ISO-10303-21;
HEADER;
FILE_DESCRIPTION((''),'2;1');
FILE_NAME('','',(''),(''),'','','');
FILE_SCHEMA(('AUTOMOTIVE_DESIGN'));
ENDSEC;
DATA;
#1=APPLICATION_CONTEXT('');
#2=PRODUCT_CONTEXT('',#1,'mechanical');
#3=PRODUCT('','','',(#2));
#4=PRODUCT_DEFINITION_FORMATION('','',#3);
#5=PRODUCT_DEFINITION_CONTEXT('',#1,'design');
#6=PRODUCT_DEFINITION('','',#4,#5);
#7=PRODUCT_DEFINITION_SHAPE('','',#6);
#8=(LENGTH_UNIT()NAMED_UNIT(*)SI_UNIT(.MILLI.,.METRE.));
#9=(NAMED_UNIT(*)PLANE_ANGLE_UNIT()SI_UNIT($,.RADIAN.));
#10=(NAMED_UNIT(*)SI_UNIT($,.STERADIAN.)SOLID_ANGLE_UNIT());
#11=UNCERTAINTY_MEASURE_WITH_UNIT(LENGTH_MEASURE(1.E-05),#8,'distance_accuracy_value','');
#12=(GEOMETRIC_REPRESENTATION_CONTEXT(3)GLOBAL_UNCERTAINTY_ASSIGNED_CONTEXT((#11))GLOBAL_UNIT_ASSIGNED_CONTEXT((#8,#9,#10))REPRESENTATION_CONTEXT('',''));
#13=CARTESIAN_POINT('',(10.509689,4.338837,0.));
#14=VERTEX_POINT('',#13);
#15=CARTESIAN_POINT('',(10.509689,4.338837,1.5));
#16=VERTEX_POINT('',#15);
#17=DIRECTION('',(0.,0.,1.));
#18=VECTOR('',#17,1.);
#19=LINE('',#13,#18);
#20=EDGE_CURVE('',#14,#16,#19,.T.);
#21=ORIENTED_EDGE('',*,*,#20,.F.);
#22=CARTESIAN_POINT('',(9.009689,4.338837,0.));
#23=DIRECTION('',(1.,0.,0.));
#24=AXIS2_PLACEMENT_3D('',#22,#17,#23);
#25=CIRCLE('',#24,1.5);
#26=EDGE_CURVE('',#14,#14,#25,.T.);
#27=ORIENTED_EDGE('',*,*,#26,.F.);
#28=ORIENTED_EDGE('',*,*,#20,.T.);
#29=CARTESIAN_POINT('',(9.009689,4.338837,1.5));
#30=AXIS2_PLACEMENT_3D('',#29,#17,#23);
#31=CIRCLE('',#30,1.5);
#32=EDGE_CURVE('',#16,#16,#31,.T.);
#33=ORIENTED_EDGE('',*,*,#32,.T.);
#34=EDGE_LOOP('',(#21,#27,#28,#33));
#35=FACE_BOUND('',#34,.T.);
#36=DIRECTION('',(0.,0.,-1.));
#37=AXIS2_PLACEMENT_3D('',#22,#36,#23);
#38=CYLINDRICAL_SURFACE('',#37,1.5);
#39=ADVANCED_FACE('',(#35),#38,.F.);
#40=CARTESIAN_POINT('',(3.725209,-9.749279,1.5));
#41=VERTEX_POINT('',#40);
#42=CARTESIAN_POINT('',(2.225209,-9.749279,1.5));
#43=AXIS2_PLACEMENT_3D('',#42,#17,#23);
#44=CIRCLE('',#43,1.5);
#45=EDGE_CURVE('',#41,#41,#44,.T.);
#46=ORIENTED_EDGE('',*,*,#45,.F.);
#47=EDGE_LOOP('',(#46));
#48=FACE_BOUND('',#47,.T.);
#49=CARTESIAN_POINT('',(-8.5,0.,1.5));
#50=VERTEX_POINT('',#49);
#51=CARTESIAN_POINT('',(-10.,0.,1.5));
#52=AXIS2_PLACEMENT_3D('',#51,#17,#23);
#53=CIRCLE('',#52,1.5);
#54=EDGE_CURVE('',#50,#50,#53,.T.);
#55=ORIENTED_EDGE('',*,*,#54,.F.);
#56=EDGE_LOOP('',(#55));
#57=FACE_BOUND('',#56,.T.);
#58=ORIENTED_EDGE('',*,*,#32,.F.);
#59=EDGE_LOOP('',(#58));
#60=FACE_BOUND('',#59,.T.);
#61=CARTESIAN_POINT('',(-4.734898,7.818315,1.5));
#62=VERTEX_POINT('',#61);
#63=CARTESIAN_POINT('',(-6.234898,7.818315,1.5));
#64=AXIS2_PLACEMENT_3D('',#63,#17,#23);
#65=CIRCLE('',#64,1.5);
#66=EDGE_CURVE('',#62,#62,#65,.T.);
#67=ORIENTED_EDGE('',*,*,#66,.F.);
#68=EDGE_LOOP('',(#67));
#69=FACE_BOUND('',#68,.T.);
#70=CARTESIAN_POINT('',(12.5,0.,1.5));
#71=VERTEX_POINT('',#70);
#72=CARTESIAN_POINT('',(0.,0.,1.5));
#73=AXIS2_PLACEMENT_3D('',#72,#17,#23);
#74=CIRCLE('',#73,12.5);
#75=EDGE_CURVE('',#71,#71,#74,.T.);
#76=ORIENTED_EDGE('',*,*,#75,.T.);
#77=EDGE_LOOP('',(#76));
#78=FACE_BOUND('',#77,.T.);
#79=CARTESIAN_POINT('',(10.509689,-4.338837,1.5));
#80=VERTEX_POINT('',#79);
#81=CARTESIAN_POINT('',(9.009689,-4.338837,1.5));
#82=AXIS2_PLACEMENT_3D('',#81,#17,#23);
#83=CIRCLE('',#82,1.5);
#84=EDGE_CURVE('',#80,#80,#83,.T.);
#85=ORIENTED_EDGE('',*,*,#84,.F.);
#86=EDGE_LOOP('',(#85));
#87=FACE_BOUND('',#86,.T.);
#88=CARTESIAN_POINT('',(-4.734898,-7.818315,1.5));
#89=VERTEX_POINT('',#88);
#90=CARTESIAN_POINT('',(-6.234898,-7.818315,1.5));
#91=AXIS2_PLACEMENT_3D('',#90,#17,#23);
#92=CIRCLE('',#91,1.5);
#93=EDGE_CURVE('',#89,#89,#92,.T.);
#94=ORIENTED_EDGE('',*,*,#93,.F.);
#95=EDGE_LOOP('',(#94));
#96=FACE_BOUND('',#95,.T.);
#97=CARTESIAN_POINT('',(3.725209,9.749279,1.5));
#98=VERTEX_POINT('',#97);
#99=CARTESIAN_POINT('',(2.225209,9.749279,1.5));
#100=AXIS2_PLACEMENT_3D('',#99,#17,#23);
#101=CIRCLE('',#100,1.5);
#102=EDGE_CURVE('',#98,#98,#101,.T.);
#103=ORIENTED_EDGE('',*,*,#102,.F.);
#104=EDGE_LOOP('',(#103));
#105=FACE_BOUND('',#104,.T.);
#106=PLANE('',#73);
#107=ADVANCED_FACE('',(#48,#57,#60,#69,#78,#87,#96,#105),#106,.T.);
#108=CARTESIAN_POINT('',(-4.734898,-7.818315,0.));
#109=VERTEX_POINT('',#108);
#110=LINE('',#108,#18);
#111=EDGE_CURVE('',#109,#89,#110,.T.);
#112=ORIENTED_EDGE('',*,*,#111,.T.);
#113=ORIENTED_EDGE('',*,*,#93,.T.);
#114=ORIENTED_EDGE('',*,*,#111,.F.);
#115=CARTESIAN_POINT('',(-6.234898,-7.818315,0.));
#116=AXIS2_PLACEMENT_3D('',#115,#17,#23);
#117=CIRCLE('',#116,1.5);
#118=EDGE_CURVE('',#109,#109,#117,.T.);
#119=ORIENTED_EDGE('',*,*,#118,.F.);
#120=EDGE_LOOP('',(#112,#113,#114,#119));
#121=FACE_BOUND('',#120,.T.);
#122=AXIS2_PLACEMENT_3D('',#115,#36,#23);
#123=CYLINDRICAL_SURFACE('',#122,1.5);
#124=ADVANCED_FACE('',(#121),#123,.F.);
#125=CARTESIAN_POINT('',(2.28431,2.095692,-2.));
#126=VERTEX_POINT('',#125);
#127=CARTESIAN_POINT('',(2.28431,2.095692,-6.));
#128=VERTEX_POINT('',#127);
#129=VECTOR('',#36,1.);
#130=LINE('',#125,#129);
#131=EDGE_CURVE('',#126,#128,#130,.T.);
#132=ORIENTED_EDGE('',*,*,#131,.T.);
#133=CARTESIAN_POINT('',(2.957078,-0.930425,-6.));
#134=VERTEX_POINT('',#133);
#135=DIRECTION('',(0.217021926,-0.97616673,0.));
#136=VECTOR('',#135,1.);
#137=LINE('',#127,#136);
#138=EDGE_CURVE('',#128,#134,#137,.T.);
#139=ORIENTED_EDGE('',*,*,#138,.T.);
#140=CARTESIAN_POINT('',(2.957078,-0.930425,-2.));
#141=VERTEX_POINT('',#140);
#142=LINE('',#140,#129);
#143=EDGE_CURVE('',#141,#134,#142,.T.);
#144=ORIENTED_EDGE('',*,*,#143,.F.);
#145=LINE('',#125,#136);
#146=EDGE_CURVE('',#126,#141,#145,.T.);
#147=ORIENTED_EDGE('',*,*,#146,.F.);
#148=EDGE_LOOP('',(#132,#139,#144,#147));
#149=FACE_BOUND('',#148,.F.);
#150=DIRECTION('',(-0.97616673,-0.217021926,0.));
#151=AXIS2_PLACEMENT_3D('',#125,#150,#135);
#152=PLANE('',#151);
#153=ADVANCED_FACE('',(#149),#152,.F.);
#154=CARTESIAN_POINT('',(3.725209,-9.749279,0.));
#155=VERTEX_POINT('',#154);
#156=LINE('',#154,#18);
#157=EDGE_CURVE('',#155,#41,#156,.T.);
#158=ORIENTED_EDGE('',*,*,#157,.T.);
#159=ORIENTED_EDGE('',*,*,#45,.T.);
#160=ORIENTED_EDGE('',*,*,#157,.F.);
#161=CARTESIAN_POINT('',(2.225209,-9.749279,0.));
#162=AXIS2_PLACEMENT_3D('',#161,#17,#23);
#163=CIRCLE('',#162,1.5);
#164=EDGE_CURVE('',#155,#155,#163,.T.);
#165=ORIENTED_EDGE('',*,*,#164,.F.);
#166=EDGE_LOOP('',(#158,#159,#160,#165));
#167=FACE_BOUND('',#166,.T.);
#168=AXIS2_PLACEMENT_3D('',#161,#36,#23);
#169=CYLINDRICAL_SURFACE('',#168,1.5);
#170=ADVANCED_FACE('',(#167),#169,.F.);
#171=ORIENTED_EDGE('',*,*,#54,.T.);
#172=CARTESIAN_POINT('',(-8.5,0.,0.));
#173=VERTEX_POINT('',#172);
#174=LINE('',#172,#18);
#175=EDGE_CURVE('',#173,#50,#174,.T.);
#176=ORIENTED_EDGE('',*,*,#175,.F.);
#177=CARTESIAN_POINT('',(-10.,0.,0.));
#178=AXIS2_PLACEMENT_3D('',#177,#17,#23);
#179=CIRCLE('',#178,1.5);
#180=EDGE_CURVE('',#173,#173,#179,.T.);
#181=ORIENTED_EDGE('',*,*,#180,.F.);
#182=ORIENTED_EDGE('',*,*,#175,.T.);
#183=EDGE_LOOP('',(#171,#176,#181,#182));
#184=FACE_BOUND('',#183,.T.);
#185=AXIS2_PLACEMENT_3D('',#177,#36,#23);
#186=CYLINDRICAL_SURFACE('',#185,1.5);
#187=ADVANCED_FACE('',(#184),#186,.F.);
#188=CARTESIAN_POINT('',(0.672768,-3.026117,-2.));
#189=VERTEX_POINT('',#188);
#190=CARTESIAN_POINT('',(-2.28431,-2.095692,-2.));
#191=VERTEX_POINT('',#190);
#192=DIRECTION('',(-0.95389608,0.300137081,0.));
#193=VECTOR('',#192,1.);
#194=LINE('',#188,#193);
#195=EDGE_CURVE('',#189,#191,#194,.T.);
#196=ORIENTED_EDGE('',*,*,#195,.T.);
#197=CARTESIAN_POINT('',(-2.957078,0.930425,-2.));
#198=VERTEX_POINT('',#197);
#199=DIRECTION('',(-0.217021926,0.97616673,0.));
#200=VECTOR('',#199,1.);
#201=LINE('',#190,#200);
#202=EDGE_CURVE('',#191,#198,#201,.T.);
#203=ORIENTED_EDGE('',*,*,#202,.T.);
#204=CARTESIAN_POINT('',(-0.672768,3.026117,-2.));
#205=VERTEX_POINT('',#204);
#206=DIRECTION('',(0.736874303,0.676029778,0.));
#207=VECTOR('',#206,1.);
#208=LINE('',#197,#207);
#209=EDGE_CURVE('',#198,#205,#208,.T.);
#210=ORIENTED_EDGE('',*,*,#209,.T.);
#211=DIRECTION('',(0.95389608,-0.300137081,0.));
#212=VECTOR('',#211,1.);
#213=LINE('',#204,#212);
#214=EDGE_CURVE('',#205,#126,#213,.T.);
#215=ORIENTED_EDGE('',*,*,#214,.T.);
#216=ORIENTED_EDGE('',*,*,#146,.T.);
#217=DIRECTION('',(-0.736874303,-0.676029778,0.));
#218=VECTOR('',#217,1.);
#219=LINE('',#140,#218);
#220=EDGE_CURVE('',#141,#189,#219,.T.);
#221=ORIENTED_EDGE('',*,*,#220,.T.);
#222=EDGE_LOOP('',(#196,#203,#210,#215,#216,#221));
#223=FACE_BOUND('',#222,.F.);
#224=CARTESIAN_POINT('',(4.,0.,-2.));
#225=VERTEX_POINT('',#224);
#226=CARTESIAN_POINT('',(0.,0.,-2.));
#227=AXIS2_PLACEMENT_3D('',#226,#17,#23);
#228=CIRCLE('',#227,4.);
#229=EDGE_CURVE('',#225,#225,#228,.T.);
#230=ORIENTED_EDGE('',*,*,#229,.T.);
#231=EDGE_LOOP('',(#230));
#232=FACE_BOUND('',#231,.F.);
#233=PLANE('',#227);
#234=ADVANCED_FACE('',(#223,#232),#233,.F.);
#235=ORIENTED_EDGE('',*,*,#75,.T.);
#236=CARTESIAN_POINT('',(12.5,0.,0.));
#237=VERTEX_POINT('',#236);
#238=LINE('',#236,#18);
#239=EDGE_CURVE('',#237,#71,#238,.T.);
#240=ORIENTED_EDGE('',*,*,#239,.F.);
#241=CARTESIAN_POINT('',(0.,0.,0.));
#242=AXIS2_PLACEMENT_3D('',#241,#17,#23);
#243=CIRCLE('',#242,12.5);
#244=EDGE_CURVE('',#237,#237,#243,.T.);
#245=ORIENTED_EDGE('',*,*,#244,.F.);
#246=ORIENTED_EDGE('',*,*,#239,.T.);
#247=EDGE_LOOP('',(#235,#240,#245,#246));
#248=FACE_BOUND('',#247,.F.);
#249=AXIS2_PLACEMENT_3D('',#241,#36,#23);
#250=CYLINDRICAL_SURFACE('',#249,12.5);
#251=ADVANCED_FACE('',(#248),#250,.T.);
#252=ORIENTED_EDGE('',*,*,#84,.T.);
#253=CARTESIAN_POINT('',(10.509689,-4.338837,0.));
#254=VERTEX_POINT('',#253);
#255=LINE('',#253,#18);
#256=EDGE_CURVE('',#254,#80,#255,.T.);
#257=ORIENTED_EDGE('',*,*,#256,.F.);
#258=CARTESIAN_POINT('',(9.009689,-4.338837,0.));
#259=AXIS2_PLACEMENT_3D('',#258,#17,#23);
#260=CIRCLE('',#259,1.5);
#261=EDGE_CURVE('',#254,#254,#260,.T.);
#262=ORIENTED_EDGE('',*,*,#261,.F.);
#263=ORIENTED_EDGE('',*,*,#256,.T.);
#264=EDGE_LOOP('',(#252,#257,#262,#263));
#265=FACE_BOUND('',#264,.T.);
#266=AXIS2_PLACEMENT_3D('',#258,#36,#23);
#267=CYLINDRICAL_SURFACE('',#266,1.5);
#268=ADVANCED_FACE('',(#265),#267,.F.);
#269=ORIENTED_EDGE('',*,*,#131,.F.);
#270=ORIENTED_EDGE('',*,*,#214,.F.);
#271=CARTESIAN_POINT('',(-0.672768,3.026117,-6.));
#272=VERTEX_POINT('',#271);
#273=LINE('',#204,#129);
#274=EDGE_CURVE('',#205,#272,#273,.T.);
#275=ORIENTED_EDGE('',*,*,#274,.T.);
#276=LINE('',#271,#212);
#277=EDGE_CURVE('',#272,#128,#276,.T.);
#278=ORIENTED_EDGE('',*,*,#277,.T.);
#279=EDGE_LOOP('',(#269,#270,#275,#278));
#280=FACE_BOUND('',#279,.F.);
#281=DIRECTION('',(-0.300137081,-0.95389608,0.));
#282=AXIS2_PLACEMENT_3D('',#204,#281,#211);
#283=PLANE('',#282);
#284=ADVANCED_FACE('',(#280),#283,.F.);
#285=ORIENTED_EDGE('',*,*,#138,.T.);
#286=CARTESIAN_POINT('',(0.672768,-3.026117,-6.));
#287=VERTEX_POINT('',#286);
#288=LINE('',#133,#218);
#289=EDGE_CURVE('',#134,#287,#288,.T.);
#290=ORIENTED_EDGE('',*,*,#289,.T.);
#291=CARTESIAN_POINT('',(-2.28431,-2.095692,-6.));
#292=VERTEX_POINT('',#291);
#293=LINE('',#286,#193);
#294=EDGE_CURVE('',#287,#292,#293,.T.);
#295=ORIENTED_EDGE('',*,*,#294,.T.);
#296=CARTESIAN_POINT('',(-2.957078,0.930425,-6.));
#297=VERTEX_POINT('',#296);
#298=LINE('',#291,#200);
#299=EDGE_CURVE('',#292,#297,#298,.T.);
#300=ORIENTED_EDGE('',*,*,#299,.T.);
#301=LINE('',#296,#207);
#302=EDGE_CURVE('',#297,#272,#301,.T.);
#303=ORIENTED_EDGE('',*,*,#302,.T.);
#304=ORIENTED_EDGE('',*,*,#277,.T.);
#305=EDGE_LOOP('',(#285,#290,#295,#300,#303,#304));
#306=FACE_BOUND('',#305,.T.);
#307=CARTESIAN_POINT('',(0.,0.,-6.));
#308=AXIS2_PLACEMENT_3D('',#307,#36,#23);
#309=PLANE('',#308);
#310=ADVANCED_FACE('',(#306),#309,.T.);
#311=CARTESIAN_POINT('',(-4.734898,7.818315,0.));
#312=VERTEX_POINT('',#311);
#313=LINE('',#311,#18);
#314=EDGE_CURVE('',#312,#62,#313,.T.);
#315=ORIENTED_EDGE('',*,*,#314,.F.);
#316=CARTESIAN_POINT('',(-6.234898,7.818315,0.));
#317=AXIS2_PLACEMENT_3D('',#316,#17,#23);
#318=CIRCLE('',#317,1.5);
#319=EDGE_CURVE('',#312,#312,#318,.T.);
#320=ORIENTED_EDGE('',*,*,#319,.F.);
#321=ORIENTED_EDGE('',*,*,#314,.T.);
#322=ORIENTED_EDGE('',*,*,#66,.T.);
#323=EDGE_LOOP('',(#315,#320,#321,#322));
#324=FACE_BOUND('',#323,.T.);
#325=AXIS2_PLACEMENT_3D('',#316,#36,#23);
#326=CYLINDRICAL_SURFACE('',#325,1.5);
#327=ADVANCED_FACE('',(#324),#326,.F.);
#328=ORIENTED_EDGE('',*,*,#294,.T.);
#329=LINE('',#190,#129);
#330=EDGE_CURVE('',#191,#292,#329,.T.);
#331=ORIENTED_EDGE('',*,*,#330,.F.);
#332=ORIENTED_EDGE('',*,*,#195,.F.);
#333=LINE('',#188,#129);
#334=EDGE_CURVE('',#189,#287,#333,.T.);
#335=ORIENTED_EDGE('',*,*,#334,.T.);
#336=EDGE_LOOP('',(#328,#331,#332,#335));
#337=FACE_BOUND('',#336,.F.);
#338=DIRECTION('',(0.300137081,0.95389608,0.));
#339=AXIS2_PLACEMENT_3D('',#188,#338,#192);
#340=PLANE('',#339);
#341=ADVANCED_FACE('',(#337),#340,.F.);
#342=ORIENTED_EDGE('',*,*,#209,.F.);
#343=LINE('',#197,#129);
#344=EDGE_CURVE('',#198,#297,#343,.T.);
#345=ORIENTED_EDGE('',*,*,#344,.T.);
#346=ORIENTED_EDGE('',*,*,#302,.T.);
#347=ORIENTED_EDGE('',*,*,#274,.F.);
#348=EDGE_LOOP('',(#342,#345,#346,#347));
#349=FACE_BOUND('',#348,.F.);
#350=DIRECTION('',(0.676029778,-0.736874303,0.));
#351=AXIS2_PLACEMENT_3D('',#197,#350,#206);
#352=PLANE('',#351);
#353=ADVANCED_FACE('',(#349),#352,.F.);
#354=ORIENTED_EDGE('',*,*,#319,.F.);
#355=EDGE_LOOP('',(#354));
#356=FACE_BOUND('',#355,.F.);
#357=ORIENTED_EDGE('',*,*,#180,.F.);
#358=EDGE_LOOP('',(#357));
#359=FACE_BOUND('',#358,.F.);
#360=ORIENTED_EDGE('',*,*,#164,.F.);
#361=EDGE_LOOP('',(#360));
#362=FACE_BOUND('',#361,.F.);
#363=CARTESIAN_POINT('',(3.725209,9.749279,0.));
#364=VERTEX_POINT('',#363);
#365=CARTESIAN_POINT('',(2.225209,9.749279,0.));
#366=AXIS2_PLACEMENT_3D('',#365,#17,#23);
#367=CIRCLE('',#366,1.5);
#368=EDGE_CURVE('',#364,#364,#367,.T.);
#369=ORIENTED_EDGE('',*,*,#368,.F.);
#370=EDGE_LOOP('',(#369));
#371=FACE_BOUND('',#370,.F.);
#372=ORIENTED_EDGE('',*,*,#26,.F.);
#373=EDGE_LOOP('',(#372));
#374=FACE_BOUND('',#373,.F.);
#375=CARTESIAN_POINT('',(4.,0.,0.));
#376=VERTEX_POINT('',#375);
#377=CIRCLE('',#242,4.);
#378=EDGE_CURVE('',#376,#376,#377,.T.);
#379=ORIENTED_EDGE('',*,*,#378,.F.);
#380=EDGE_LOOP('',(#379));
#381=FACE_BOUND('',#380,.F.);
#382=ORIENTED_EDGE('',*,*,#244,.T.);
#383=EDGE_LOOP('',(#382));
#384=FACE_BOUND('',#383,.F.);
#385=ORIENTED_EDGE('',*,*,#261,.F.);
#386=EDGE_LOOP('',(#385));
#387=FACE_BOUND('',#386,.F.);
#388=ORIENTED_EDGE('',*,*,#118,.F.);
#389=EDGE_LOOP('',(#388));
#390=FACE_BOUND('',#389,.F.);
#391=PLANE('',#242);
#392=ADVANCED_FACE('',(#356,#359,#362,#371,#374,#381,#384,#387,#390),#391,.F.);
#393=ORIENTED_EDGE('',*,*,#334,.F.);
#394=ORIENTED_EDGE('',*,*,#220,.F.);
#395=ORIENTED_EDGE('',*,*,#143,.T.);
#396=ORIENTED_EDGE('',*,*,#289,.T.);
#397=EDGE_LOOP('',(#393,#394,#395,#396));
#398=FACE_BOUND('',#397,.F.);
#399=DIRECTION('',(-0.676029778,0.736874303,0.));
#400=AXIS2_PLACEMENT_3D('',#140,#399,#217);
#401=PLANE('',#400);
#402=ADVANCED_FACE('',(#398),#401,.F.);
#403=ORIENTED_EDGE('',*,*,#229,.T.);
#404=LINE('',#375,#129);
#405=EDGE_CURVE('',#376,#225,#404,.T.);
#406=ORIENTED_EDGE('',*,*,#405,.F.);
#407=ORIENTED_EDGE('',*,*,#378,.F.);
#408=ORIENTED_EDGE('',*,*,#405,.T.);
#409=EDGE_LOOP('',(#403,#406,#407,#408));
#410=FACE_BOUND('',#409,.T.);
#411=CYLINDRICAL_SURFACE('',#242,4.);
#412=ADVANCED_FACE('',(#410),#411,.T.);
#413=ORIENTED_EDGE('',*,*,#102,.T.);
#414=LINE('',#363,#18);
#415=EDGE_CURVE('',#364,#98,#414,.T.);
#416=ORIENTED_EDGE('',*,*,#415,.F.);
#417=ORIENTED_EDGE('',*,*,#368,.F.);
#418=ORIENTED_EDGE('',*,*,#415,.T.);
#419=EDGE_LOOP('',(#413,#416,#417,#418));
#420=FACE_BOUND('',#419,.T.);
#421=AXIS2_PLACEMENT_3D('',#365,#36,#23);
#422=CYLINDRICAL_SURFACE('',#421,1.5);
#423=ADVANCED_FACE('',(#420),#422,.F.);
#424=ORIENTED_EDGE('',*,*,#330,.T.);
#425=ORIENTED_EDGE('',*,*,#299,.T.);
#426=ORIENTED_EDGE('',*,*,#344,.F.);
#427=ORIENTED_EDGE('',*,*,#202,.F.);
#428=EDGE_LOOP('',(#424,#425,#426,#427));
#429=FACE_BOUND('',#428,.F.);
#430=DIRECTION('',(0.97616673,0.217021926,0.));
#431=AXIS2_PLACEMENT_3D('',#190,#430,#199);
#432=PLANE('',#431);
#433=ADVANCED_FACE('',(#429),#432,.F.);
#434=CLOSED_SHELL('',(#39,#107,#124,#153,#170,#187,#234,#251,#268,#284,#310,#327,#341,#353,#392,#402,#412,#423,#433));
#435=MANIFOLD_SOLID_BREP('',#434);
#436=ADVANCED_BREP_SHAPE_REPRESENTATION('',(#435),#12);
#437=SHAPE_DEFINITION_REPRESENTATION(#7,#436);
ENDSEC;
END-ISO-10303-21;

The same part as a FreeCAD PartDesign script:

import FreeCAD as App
import Part
import Sketcher
from FreeCAD import Vector
Q = App.Units.Quantity


def add_polygon(sketch, points):
    """Adds a closed chain of lines whose ends are joined by coincident constraints."""
    first, n = sketch.GeometryCount, len(points)
    for a, b in zip(points, points[1:] + points[:1]):
        sketch.addGeometry(Part.LineSegment(App.Vector(*a, 0), App.Vector(*b, 0)), False)
    for i in range(n):
        sketch.addConstraint(Sketcher.Constraint("Coincident", first + i, 2, first + (i + 1) % n, 1))

doc = App.newDocument("Part")
body = doc.addObject("PartDesign::Body", "Body")

# Sketch on XY plane
sketch1 = body.newObject("Sketcher::SketchObject", "Sketch")
sketch1.AttachmentSupport = (doc.getObject("XY_Plane"), [""])
sketch1.MapMode = "FlatFace"
sketch1.addGeometry([
    Part.Circle(Vector(0, 0, 0), Vector(0, 0, 1), 12.5),  # 0
    Part.Circle(Vector(-6.2, -7.8, 0), Vector(0, 0, 1), 1.5),  # 1
    Part.Circle(Vector(-10, 0, 0), Vector(0, 0, 1), 1.5),  # 2
    Part.Circle(Vector(2.2, -9.7, 0), Vector(0, 0, 1), 1.5),  # 3
    Part.Circle(Vector(9, -4.3, 0), Vector(0, 0, 1), 1.5),  # 4
    Part.Circle(Vector(-6.2, 7.8, 0), Vector(0, 0, 1), 1.5),  # 5
    Part.Circle(Vector(9, 4.3, 0), Vector(0, 0, 1), 1.5),  # 6
    Part.Circle(Vector(2.2, 9.7, 0), Vector(0, 0, 1), 1.5),  # 7
], False)
sketch1.addConstraint([
    Sketcher.Constraint("Coincident", 0, 3, -1, 1),
    Sketcher.Constraint("Equal", 1, 2),
    Sketcher.Constraint("Equal", 2, 3),
    Sketcher.Constraint("Equal", 3, 4),
    Sketcher.Constraint("Equal", 4, 5),
    Sketcher.Constraint("Equal", 5, 6),
    Sketcher.Constraint("Equal", 6, 7),
    Sketcher.Constraint("Symmetric", 1, 3, 5, 3, -1),
    Sketcher.Constraint("Symmetric", 4, 3, 6, 3, -1),
    Sketcher.Constraint("Symmetric", 3, 3, 7, 3, -1),
    Sketcher.Constraint("PointOnObject", 2, 3, -1),
    Sketcher.Constraint("Diameter", 0, Q("25 mm")),
    Sketcher.Constraint("Diameter", 1, Q("3 mm")),
    Sketcher.Constraint("DistanceX", 2, 3, -1, 1, Q("10 mm")),
    Sketcher.Constraint("DistanceX", 1, 3, -1, 1, Q("6.234898 mm")),
    Sketcher.Constraint("DistanceX", -1, 1, 3, 3, Q("2.225209 mm")),
    Sketcher.Constraint("DistanceY", 3, 3, -1, 1, Q("9.749279 mm")),
    Sketcher.Constraint("DistanceX", -1, 1, 4, 3, Q("9.009689 mm")),
    Sketcher.Constraint("DistanceY", 3, 3, 4, 3, Q("5.410442 mm")),
    Sketcher.Constraint("DistanceY", 1, 3, 4, 3, Q("3.479478 mm")),
])
pad1 = body.newObject("PartDesign::Pad", "Pad")
pad1.Profile = sketch1
pad1.Length = 1.5

# Sketch on XY plane
sketch2 = body.newObject("Sketcher::SketchObject", "Sketch001")
sketch2.AttachmentSupport = (doc.getObject("XY_Plane"), [""])
sketch2.MapMode = "FlatFace"
sketch2.addGeometry(Part.Circle(Vector(0, 0, 0), Vector(0, 0, 1), 4), False)
sketch2.addConstraint([
    Sketcher.Constraint("Coincident", 0, 3, -1, 1),
    Sketcher.Constraint("Diameter", 0, Q("8 mm")),
])
pad2 = body.newObject("PartDesign::Pad", "Pad001")
pad2.Profile = sketch2
pad2.Length = 2
pad2.Reversed = True

# Sketch on XY plane
sketch3 = body.newObject("Sketcher::SketchObject", "Sketch002")
sketch3.AttachmentSupport = (doc.getObject("XY_Plane"), [""])
sketch3.MapMode = "FlatFace"
sketch3.AttachmentOffset = App.Placement(Vector(0, 0, -2), App.Rotation())
add_polygon(sketch3, [(-0.7, 3), (2.3, 2.1), (3, -0.9), (0.7, -3), (-2.3, -2.1), (-3, 0.9)])  # lines 0-5
sketch3.addConstraint([
    Sketcher.Constraint("Symmetric", 0, 2, 3, 2, -1, 1),
    Sketcher.Constraint("Symmetric", 1, 2, 4, 2, -1, 1),
    Sketcher.Constraint("Symmetric", 2, 2, 5, 2, -1, 1),
    Sketcher.Constraint("Equal", 0, 1),
    Sketcher.Constraint("Equal", 1, 2),
    Sketcher.Constraint("Distance", 0, Q("3.1 mm")),
    Sketcher.Constraint("DistanceX", -1, 1, 0, 2, Q("2.28431 mm")),
    Sketcher.Constraint("DistanceX", -1, 1, 1, 2, Q("2.957078 mm")),
    Sketcher.Constraint("DistanceX", -1, 1, 2, 2, Q("0.672768 mm")),
])
pad3 = body.newObject("PartDesign::Pad", "Pad002")
pad3.Profile = sketch3
pad3.Length = 4
pad3.Reversed = True

doc.recompute()
